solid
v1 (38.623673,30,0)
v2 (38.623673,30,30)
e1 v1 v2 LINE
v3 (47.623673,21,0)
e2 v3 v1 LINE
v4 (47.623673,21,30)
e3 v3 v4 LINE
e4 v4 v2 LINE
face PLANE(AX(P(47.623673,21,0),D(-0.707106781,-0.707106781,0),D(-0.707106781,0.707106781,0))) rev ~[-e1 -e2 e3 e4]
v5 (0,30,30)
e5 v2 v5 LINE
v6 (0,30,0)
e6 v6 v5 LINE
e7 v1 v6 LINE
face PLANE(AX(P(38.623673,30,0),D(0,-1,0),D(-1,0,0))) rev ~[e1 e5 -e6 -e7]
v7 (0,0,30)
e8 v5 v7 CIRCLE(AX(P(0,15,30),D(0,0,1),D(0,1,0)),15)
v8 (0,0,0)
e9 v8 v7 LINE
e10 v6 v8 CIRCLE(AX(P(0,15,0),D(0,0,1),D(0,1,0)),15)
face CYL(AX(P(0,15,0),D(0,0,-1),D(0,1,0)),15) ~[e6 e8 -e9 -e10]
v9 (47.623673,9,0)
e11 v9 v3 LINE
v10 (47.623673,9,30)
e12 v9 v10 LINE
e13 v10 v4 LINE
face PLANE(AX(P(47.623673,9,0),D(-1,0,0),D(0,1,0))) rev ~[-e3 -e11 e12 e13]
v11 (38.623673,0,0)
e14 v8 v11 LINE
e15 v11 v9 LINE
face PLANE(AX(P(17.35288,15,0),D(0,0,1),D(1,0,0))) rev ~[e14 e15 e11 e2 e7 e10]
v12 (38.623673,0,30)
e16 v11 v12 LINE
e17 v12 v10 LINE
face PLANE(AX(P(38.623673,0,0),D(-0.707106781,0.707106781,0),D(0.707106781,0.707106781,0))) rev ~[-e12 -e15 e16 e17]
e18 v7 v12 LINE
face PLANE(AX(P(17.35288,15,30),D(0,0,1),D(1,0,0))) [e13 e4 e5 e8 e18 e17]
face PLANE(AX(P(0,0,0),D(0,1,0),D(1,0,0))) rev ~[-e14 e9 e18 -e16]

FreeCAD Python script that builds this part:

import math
import FreeCAD as App
import Part
import Sketcher

doc = App.newDocument("Part")
body = doc.addObject("PartDesign::Body", "Body")

# Sketch on XY plane
sketch1 = body.newObject("Sketcher::SketchObject", "Sketch")
sketch1.AttachmentSupport = (doc.getObject("XY_Plane"), [""])
sketch1.MapMode = "FlatFace"
sketch1.addGeometry([
    Part.ArcOfCircle(Part.Circle(App.Vector(0, 15, 0), App.Vector(0, 0, 1), 15), math.radians(90), math.radians(270)),  # 0
    Part.LineSegment(App.Vector(0, 0, 0), App.Vector(39, 0, 0)),  # 1
    Part.LineSegment(App.Vector(39, 0, 0), App.Vector(48, 9, 0)),  # 2
    Part.LineSegment(App.Vector(48, 9, 0), App.Vector(48, 21, 0)),  # 3
    Part.LineSegment(App.Vector(48, 21, 0), App.Vector(39, 30, 0)),  # 4
    Part.LineSegment(App.Vector(39, 30, 0), App.Vector(0, 30, 0)),  # 5
], False)
sketch1.addConstraint([
    Sketcher.Constraint("Tangent", 0, 2, 1, 1),
    Sketcher.Constraint("Coincident", 1, 2, 2, 1),
    Sketcher.Constraint("Coincident", 2, 2, 3, 1),
    Sketcher.Constraint("Coincident", 3, 2, 4, 1),
    Sketcher.Constraint("Coincident", 4, 2, 5, 1),
    Sketcher.Constraint("Tangent", 5, 2, 0, 1),
    Sketcher.Constraint("Horizontal", 1),
    Sketcher.Constraint("Vertical", 3),
    Sketcher.Constraint("Horizontal", 5),
    Sketcher.Constraint("Coincident", 0, 2, -1, 1),
    Sketcher.Constraint("Perpendicular", 2, 4),
    Sketcher.Constraint("Vertical", 1, 2, 4, 2),
    Sketcher.Constraint("Equal", 2, 4),
    Sketcher.Constraint("Radius", 0, 15.0),
    Sketcher.Constraint("DistanceY", 3, 1, 3, 2, 12.0),
    Sketcher.Constraint("DistanceX", 1, 1, 1, 2, 38.623673),
])
pad1 = body.newObject("PartDesign::Pad", "Pad")
pad1.Profile = sketch1
pad1.Length = 30

doc.recompute()
